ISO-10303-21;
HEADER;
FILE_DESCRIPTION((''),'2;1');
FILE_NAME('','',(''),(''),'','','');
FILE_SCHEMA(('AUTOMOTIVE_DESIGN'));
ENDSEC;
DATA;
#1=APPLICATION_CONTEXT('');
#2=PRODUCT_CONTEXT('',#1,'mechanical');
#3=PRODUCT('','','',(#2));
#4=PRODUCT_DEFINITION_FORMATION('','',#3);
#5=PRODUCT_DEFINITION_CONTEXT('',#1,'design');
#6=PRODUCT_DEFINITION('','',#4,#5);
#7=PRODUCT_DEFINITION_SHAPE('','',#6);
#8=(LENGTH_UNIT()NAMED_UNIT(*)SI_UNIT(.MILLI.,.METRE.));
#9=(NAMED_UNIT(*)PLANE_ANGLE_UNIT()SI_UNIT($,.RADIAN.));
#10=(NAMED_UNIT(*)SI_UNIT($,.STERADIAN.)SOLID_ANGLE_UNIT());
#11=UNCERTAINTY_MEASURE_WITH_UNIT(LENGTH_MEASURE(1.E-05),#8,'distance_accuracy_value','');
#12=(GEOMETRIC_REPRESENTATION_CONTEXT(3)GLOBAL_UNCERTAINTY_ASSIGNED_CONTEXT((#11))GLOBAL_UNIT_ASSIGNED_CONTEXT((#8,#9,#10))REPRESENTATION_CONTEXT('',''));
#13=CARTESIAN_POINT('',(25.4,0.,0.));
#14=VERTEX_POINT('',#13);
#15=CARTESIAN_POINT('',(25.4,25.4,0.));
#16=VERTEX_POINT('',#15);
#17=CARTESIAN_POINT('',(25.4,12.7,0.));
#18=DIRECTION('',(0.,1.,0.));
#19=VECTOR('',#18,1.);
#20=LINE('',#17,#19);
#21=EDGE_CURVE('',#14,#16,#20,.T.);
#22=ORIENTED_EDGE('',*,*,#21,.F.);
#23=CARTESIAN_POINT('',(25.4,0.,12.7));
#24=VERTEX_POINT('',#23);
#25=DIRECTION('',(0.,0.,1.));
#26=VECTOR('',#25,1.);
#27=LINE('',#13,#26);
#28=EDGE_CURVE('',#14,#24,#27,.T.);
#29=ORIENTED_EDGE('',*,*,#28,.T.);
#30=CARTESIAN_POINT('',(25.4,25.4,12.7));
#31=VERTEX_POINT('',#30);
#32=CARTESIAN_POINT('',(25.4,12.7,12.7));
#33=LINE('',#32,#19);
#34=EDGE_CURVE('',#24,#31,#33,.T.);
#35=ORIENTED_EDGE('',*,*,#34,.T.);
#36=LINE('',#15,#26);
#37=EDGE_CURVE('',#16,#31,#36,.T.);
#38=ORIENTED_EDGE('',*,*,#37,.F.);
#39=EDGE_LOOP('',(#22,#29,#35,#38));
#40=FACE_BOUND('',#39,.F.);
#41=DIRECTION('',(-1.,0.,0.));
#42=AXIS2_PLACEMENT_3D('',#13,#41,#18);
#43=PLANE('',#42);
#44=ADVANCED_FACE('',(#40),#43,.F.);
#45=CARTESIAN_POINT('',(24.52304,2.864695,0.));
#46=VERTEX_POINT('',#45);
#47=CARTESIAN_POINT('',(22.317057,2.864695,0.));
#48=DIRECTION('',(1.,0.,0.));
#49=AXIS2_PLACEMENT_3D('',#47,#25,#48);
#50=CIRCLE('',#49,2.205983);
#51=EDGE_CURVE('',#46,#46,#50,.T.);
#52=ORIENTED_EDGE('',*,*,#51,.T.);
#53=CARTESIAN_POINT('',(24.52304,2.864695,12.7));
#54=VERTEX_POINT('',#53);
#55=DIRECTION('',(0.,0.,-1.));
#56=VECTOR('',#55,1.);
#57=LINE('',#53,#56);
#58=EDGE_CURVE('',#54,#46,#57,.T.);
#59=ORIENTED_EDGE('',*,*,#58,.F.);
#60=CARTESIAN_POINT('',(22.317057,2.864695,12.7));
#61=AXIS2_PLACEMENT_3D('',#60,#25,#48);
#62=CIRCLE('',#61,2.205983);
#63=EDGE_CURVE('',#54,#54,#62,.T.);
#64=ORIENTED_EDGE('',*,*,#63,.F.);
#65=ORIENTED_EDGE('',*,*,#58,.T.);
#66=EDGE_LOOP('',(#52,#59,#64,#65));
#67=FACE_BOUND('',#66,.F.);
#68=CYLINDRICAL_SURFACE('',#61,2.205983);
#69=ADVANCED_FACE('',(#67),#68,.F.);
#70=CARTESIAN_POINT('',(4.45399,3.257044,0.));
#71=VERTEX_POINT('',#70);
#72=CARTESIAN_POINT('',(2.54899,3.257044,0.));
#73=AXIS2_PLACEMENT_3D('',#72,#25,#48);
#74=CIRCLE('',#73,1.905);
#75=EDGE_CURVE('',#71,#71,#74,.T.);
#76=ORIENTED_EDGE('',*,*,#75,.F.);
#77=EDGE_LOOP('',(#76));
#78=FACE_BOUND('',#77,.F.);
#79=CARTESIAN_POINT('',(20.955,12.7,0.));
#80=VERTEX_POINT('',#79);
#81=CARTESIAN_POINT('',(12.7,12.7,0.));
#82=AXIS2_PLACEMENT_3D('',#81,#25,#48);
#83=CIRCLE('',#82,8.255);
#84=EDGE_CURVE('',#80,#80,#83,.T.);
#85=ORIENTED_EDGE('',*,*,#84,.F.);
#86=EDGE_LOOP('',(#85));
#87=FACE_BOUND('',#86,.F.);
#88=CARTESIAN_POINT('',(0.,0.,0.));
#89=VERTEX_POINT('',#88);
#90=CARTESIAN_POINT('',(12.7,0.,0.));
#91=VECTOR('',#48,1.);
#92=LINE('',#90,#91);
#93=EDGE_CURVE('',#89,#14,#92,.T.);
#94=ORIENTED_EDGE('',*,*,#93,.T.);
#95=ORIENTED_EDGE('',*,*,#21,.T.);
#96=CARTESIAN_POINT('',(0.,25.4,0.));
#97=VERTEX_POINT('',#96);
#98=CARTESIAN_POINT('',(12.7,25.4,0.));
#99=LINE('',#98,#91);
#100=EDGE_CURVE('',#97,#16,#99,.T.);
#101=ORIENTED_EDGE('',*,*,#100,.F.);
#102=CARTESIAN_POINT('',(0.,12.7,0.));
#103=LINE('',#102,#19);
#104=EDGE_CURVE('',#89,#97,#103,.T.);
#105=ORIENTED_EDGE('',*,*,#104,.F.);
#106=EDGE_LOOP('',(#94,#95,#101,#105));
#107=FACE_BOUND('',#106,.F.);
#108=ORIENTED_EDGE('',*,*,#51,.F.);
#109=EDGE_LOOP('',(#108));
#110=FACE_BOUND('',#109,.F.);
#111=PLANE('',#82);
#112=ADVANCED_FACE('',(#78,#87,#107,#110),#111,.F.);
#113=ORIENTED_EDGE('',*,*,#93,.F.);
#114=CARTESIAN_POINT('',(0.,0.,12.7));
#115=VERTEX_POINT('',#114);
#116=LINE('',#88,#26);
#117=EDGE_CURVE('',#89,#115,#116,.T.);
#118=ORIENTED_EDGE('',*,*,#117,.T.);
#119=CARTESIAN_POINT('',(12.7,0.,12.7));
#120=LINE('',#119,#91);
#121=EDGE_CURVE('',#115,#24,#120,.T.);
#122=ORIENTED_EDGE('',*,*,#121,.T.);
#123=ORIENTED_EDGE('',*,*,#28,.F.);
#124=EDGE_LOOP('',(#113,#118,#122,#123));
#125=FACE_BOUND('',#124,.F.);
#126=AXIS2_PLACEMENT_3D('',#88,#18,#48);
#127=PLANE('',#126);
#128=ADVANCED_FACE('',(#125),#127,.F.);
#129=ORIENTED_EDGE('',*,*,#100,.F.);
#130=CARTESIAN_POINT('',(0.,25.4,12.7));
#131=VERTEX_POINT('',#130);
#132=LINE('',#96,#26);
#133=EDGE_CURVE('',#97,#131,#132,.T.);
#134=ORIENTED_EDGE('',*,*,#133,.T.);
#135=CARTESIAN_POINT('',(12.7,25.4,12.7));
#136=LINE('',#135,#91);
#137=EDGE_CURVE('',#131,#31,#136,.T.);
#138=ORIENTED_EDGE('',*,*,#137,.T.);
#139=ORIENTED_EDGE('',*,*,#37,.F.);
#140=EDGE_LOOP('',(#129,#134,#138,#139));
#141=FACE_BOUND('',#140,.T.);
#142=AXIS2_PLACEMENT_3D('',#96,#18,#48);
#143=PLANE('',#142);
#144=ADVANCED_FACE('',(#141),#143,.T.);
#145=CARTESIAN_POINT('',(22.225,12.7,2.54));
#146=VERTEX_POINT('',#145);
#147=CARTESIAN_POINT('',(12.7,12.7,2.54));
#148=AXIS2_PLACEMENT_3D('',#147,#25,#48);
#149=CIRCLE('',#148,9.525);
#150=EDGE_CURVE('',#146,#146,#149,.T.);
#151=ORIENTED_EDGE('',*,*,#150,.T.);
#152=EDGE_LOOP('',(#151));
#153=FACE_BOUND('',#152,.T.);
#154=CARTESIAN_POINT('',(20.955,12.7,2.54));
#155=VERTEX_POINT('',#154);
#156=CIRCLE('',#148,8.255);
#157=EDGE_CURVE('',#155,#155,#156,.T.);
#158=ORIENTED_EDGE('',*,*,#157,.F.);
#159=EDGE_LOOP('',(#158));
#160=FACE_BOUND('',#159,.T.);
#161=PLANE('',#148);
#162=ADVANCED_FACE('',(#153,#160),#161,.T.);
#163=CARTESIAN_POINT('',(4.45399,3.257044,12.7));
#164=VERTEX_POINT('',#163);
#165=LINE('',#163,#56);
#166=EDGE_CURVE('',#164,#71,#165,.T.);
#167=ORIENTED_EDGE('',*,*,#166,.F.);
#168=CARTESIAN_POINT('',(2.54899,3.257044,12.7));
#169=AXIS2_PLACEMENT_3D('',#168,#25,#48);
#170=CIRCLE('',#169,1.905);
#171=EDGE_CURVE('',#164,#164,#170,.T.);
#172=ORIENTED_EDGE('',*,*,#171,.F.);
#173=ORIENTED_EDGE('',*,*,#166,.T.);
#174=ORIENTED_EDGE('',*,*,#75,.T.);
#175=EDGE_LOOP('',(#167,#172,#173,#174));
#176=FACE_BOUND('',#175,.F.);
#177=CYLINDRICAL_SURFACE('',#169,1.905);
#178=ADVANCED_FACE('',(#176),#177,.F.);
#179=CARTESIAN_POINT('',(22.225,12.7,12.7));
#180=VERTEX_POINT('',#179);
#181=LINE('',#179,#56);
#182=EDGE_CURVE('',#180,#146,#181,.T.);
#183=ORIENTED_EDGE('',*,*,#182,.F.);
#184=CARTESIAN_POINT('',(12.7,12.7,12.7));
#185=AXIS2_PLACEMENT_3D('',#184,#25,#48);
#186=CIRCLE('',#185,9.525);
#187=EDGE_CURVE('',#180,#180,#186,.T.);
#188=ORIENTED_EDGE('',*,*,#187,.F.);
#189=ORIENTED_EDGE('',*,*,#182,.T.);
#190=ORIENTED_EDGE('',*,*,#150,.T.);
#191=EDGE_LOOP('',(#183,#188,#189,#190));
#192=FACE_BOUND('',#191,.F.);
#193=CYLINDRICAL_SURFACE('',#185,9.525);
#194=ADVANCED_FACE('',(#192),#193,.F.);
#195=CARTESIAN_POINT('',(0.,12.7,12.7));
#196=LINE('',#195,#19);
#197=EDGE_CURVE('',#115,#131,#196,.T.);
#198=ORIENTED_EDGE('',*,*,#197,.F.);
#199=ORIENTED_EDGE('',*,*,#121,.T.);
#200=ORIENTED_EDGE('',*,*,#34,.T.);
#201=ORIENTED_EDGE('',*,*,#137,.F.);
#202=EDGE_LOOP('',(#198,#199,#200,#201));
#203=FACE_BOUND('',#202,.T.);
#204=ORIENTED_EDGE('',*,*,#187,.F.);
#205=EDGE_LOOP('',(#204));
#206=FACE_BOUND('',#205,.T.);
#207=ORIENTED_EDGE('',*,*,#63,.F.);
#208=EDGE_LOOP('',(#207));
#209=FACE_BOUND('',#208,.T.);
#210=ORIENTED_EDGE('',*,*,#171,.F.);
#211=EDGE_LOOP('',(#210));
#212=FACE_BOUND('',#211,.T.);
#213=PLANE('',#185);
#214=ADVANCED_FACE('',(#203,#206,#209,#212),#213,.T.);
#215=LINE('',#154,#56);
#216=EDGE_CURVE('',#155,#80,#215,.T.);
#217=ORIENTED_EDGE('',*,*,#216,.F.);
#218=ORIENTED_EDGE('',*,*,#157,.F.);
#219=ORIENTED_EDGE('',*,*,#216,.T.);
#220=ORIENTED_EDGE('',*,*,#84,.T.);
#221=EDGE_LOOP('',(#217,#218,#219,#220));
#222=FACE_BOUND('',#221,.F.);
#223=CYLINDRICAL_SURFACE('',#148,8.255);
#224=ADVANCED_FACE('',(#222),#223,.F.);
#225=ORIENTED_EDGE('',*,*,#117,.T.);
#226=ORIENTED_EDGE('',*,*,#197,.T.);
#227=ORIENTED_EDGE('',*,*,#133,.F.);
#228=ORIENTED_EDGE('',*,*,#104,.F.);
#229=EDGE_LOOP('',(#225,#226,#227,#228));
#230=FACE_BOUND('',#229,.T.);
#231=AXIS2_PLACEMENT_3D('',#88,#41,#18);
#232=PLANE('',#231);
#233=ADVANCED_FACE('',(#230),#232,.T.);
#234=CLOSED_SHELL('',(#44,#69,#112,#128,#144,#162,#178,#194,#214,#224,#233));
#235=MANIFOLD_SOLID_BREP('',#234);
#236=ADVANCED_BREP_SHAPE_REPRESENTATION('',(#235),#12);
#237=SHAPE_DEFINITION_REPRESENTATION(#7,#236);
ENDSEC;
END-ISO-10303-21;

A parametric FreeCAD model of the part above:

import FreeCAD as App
import Part
import Sketcher
Q = App.Units.Quantity

doc = App.newDocument("Part")
body = doc.addObject("PartDesign::Body", "Body")

# Sketch on XY plane
sketch1 = body.newObject("Sketcher::SketchObject", "Sketch")
sketch1.AttachmentSupport = (doc.getObject("XY_Plane"), [""])
sketch1.MapMode = "FlatFace"
sketch1.addGeometry(Part.LineSegment(App.Vector(0, 25, 0), App.Vector(0, 0, 0)), False)
sketch1.addGeometry(Part.LineSegment(App.Vector(0, 0, 0), App.Vector(25, 0, 0)), False)
sketch1.addGeometry(Part.LineSegment(App.Vector(25, 0, 0), App.Vector(25, 25, 0)), False)
sketch1.addGeometry(Part.LineSegment(App.Vector(25, 25, 0), App.Vector(0, 25, 0)), False)
sketch1.addConstraint(Sketcher.Constraint("Coincident", 0, 2, 1, 1))
sketch1.addConstraint(Sketcher.Constraint("Coincident", 1, 2, 2, 1))
sketch1.addConstraint(Sketcher.Constraint("Coincident", 2, 2, 3, 1))
sketch1.addConstraint(Sketcher.Constraint("Coincident", 3, 2, 0, 1))
sketch1.addConstraint(Sketcher.Constraint("Vertical", 0))
sketch1.addConstraint(Sketcher.Constraint("Horizontal", 1))
sketch1.addConstraint(Sketcher.Constraint("Vertical", 2))
sketch1.addConstraint(Sketcher.Constraint("Horizontal", 3))
sketch1.addConstraint(Sketcher.Constraint("Coincident", 0, 2, -1, 1))
sketch1.addConstraint(Sketcher.Constraint("Equal", 3, 0))
sketch1.addConstraint(Sketcher.Constraint("DistanceX", 1, 1, 1, 2, Q("1 in")))
pad1 = body.newObject("PartDesign::Pad", "Pad")
pad1.Profile = sketch1
pad1.Length = Q("0.5 in")

# Sketch on XY plane
sketch2 = body.newObject("Sketcher::SketchObject", "Sketch001")
sketch2.AttachmentSupport = (doc.getObject("XY_Plane"), [""])
sketch2.MapMode = "FlatFace"
sketch2.AttachmentOffset = App.Placement(App.Vector(0, 0, 0.5 * 25.4), App.Rotation())
sketch2.addGeometry(Part.Circle(App.Vector(13, 13, 0), App.Vector(0, 0, 1), 10), False)
sketch2.addConstraint(Sketcher.Constraint("Diameter", 0, Q("0.75 in")))
sketch2.addConstraint(Sketcher.Constraint("DistanceX", -1, 1, 0, 3, Q("0.5 in")))
sketch2.addConstraint(Sketcher.Constraint("DistanceY", -1, 1, 0, 3, Q("0.5 in")))
pocket1 = body.newObject("PartDesign::Pocket", "Pocket")
pocket1.Profile = sketch2
pocket1.Length = Q("0.4 in")

# Sketch on XY plane
sketch3 = body.newObject("Sketcher::SketchObject", "Sketch002")
sketch3.AttachmentSupport = (doc.getObject("XY_Plane"), [""])
sketch3.MapMode = "FlatFace"
sketch3.AttachmentOffset = App.Placement(App.Vector(0, 0, 0.1 * 25.4), App.Rotation())
sketch3.addGeometry(Part.Circle(App.Vector(13, 13, 0), App.Vector(0, 0, 1), 8), False)
sketch3.addConstraint(Sketcher.Constraint("Diameter", 0, Q("0.65 in")))
sketch3.addConstraint(Sketcher.Constraint("DistanceX", -1, 1, 0, 3, Q("0.5 in")))
sketch3.addConstraint(Sketcher.Constraint("DistanceY", -1, 1, 0, 3, Q("0.5 in")))
pocket2 = body.newObject("PartDesign::Pocket", "Pocket001")
pocket2.Profile = sketch3
pocket2.Type = "ThroughAll"

# Sketch on XY plane
sketch4 = body.newObject("Sketcher::SketchObject", "Sketch003")
sketch4.AttachmentSupport = (doc.getObject("XY_Plane"), [""])
sketch4.MapMode = "FlatFace"
sketch4.AttachmentOffset = App.Placement(App.Vector(0, 0, 0.5 * 25.4), App.Rotation())
sketch4.addGeometry(Part.Circle(App.Vector(2.5, 3.3, 0), App.Vector(0, 0, 1), 1.9), False)
sketch4.addConstraint(Sketcher.Constraint("Diameter", 0, Q("0.15 in")))
sketch4.addConstraint(Sketcher.Constraint("DistanceX", -1, 1, 0, 3, Q("2.54899 mm")))
sketch4.addConstraint(Sketcher.Constraint("DistanceY", -1, 1, 0, 3, Q("3.257044 mm")))
pocket3 = body.newObject("PartDesign::Pocket", "Pocket002")
pocket3.Profile = sketch4
pocket3.Type = "ThroughAll"

# Sketch on XY plane
sketch5 = body.newObject("Sketcher::SketchObject", "Sketch004")
sketch5.AttachmentSupport = (doc.getObject("XY_Plane"), [""])
sketch5.MapMode = "FlatFace"
sketch5.AttachmentOffset = App.Placement(App.Vector(0, 0, 0.5 * 25.4), App.Rotation())
sketch5.addGeometry(Part.Circle(App.Vector(22.3, 2.9, 0), App.Vector(0, 0, 1), 2.2), False)
sketch5.addConstraint(Sketcher.Constraint("Diameter", 0, Q("4.411966 mm")))
sketch5.addConstraint(Sketcher.Constraint("DistanceX", -1, 1, 0, 3, Q("22.317057 mm")))
sketch5.addConstraint(Sketcher.Constraint("DistanceY", -1, 1, 0, 3, Q("2.864695 mm")))
pocket4 = body.newObject("PartDesign::Pocket", "Pocket003")
pocket4.Profile = sketch5
pocket4.Type = "ThroughAll"

doc.recompute()
